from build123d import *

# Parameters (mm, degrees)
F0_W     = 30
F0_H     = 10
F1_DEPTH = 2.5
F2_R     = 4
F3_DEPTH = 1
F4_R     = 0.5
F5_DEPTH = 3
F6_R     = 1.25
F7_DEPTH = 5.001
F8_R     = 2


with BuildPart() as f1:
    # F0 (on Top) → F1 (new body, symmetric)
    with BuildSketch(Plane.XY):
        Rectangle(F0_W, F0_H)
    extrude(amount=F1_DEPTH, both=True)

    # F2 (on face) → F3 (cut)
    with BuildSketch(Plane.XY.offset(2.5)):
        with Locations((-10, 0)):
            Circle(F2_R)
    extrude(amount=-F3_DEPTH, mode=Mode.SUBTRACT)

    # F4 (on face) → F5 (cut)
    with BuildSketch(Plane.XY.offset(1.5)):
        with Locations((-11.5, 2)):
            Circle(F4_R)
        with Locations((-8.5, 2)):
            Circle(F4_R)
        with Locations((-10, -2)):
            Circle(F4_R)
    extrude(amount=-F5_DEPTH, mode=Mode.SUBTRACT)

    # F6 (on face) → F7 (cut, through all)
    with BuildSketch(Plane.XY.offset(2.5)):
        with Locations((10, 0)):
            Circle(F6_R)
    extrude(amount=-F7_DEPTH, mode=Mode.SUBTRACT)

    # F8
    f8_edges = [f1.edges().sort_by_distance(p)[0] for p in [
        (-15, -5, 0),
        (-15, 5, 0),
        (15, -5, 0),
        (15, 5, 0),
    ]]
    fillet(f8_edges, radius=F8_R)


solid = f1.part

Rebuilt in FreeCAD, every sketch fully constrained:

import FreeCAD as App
import Part
import Sketcher
from FreeCAD import Vector


def edges_at(feature, points):
    """Names of the edges that pass closest to the given points."""
    edges = feature.Shape.Edges
    near = lambda p: min(range(len(edges)), key=lambda i: edges[i].distToShape(Part.Vertex(*p))[0])
    return sorted({f"Edge{near(p) + 1}" for p in points})


def add_polygon(sketch, points):
    """Adds a closed chain of lines whose ends are joined by coincident constraints."""
    first, n = sketch.GeometryCount, len(points)
    for a, b in zip(points, points[1:] + points[:1]):
        sketch.addGeometry(Part.LineSegment(App.Vector(*a, 0), App.Vector(*b, 0)), False)
    for i in range(n):
        sketch.addConstraint(Sketcher.Constraint("Coincident", first + i, 2, first + (i + 1) % n, 1))

doc = App.newDocument("Part")
body = doc.addObject("PartDesign::Body", "Body")

# Sketch on XY plane
sketch1 = doc.addObject("Sketcher::SketchObject", "Sketch")
body.addObject(sketch1)
sketch1.AttachmentSupport = (doc.XY_Plane, [""])
sketch1.MapMode = "FlatFace"
add_polygon(sketch1, [(-15, 5), (-15, -5), (15, -5), (15, 5)])  # lines 0-3
sketch1.addConstraint([
    Sketcher.Constraint("Vertical", 0),
    Sketcher.Constraint("Horizontal", 1),
    Sketcher.Constraint("Vertical", 2),
    Sketcher.Constraint("Horizontal", 3),
    Sketcher.Constraint("Symmetric", 0, 2, 2, 2, -1, 1),
    Sketcher.Constraint("DistanceX", 1, 1, 1, 2, 30.0),
    Sketcher.Constraint("DistanceY", 0, 2, 0, 1, 10.0),
])
pad1 = doc.addObject("PartDesign::Pad", "Pad")
body.addObject(pad1)
pad1.Profile = sketch1
pad1.Length = 5
pad1.Midplane = True

# Sketch on XY plane
sketch2 = doc.addObject("Sketcher::SketchObject", "Sketch001")
body.addObject(sketch2)
sketch2.AttachmentSupport = (doc.XY_Plane, [""])
sketch2.MapMode = "FlatFace"
sketch2.AttachmentOffset = App.Placement(Vector(0, 0, 2.5), App.Rotation())
sketch2.addGeometry(Part.Circle(Vector(-10, 0, 0), Vector(0, 0, 1), 4), False)
sketch2.addConstraint([
    Sketcher.Constraint("PointOnObject", 0, 3, -1),
    Sketcher.Constraint("Diameter", 0, 8.0),
    Sketcher.Constraint("DistanceX", 0, 3, -1, 1, 10.0),
])
pocket1 = doc.addObject("PartDesign::Pocket", "Pocket")
body.addObject(pocket1)
pocket1.Profile = sketch2
pocket1.Length = 1

# Sketch on XY plane
sketch3 = doc.addObject("Sketcher::SketchObject", "Sketch002")
body.addObject(sketch3)
sketch3.AttachmentSupport = (doc.XY_Plane, [""])
sketch3.MapMode = "FlatFace"
sketch3.AttachmentOffset = App.Placement(Vector(0, 0, 1.5), App.Rotation())
sketch3.addGeometry([
    Part.Circle(Vector(-11.5, 2, 0), Vector(0, 0, 1), 0.5),
    Part.Circle(Vector(-8.5, 2, 0), Vector(0, 0, 1), 0.5),
    Part.Circle(Vector(-10, -2, 0), Vector(0, 0, 1), 0.5),
], False)
sketch3.addConstraint([
    Sketcher.Constraint("Equal", 0, 1),
    Sketcher.Constraint("Equal", 1, 2),
    Sketcher.Constraint("Horizontal", 0, 3, 1, 3),
    Sketcher.Constraint("Diameter", 0, 1.0),
    Sketcher.Constraint("DistanceY", -1, 1, 0, 3, 2.0),
    Sketcher.Constraint("DistanceX", 2, 3, -1, 1, 10.0),
    Sketcher.Constraint("DistanceY", 2, 3, -1, 1, 2.0),
    Sketcher.Constraint("DistanceX", 0, 3, 1, 3, 3.0),
    Sketcher.Constraint("DistanceX", 0, 3, -1, 1, 11.5),
])
pocket2 = doc.addObject("PartDesign::Pocket", "Pocket001")
body.addObject(pocket2)
pocket2.Profile = sketch3
pocket2.Length = 3

# Sketch on XY plane
sketch4 = doc.addObject("Sketcher::SketchObject", "Sketch003")
body.addObject(sketch4)
sketch4.AttachmentSupport = (doc.XY_Plane, [""])
sketch4.MapMode = "FlatFace"
sketch4.AttachmentOffset = App.Placement(Vector(0, 0, 2.5), App.Rotation())
sketch4.addGeometry(Part.Circle(Vector(10, 0, 0), Vector(0, 0, 1), 1.2), False)
sketch4.addConstraint([
    Sketcher.Constraint("PointOnObject", 0, 3, -1),
    Sketcher.Constraint("Diameter", 0, 2.5),
    Sketcher.Constraint("DistanceX", -1, 1, 0, 3, 10.0),
])
pocket3 = doc.addObject("PartDesign::Pocket", "Pocket002")
body.addObject(pocket3)
pocket3.Profile = sketch4
pocket3.Type = "ThroughAll"
doc.recompute()

fillet = doc.addObject("PartDesign::Fillet", "Fillet")
body.addObject(fillet)
fillet.Base = (pocket3, edges_at(pocket3, [
    (-15, -5, 0),
    (-15, 5, 0),
    (15, -5, 0),
    (15, 5, 0),
]))
fillet.Radius = 2

doc.recompute()
